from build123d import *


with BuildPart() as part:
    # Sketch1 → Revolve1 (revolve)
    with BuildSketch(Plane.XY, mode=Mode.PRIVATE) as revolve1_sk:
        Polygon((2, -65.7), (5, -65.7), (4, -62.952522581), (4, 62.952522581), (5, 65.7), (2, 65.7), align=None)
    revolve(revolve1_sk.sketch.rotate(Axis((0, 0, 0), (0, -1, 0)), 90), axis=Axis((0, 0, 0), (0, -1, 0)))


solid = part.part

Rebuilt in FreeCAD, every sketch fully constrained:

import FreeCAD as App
import Part
import Sketcher
Q = App.Units.Quantity


def add_polygon(sketch, points):
    """Adds a closed chain of lines whose ends are joined by coincident constraints."""
    first, n = sketch.GeometryCount, len(points)
    for a, b in zip(points, points[1:] + points[:1]):
        sketch.addGeometry(Part.LineSegment(App.Vector(*a, 0), App.Vector(*b, 0)), False)
    for i in range(n):
        sketch.addConstraint(Sketcher.Constraint("Coincident", first + i, 2, first + (i + 1) % n, 1))

doc = App.newDocument("Part")
params = doc.addObject("Spreadsheet::Sheet", "Params")
for row, (alias, value) in enumerate([
    ("sketch1_width", "3 mm"),
    ("sketch1_height", "131.4 mm"),
    ("revolution_angle", "360 deg"),
], start=1):
    params.set(f"A{row}", alias)
    params.set(f"B{row}", "=" + value)
    params.setAlias(f"B{row}", alias)

body = doc.addObject("PartDesign::Body", "Body")

# Sketch on XY plane
sketch1 = body.newObject("Sketcher::SketchObject", "Sketch")
sketch1.AttachmentSupport = (doc.getObject("XY_Plane"), [""])
sketch1.MapMode = "FlatFace"
add_polygon(sketch1, [(2, -65.7), (5, -65.7), (4, -63), (4, 63), (5, 65.7), (2, 65.7)])  # lines 0-5
sketch1.addConstraint(Sketcher.Constraint("Horizontal", 0))
sketch1.addConstraint(Sketcher.Constraint("Vertical", 2))
sketch1.addConstraint(Sketcher.Constraint("Horizontal", 4))
sketch1.addConstraint(Sketcher.Constraint("Vertical", 5))
sketch1.addConstraint(Sketcher.Constraint("Symmetric", 0, 2, 3, 2, -1))
sketch1.addConstraint(Sketcher.Constraint("Equal", 1, 3))
sketch1.addConstraint(Sketcher.Constraint("DistanceX", 0, 1, 0, 2, Q("3 mm")))
sketch1.addConstraint(Sketcher.Constraint("Angle", 1, Q("110 deg")))
sketch1.addConstraint(Sketcher.Constraint("DistanceY", 5, 2, 5, 1, Q("131.4 mm")))
sketch1.addConstraint(Sketcher.Constraint("DistanceX", -1, 1, 0, 2, Q("5 mm")))
sketch1.addConstraint(Sketcher.Constraint("DistanceX", -1, 1, 1, 2, Q("4 mm")))
sketch1.setExpression("Constraints[12]", "Params.sketch1_width")
sketch1.setExpression("Constraints[14]", "Params.sketch1_height")
revolution = body.newObject("PartDesign::Revolution", "Revolution")
revolution.Profile = sketch1
revolution.ReferenceAxis = (sketch1, ["V_Axis"])
revolution.setExpression("Angle", "Params.revolution_angle")

doc.recompute()
